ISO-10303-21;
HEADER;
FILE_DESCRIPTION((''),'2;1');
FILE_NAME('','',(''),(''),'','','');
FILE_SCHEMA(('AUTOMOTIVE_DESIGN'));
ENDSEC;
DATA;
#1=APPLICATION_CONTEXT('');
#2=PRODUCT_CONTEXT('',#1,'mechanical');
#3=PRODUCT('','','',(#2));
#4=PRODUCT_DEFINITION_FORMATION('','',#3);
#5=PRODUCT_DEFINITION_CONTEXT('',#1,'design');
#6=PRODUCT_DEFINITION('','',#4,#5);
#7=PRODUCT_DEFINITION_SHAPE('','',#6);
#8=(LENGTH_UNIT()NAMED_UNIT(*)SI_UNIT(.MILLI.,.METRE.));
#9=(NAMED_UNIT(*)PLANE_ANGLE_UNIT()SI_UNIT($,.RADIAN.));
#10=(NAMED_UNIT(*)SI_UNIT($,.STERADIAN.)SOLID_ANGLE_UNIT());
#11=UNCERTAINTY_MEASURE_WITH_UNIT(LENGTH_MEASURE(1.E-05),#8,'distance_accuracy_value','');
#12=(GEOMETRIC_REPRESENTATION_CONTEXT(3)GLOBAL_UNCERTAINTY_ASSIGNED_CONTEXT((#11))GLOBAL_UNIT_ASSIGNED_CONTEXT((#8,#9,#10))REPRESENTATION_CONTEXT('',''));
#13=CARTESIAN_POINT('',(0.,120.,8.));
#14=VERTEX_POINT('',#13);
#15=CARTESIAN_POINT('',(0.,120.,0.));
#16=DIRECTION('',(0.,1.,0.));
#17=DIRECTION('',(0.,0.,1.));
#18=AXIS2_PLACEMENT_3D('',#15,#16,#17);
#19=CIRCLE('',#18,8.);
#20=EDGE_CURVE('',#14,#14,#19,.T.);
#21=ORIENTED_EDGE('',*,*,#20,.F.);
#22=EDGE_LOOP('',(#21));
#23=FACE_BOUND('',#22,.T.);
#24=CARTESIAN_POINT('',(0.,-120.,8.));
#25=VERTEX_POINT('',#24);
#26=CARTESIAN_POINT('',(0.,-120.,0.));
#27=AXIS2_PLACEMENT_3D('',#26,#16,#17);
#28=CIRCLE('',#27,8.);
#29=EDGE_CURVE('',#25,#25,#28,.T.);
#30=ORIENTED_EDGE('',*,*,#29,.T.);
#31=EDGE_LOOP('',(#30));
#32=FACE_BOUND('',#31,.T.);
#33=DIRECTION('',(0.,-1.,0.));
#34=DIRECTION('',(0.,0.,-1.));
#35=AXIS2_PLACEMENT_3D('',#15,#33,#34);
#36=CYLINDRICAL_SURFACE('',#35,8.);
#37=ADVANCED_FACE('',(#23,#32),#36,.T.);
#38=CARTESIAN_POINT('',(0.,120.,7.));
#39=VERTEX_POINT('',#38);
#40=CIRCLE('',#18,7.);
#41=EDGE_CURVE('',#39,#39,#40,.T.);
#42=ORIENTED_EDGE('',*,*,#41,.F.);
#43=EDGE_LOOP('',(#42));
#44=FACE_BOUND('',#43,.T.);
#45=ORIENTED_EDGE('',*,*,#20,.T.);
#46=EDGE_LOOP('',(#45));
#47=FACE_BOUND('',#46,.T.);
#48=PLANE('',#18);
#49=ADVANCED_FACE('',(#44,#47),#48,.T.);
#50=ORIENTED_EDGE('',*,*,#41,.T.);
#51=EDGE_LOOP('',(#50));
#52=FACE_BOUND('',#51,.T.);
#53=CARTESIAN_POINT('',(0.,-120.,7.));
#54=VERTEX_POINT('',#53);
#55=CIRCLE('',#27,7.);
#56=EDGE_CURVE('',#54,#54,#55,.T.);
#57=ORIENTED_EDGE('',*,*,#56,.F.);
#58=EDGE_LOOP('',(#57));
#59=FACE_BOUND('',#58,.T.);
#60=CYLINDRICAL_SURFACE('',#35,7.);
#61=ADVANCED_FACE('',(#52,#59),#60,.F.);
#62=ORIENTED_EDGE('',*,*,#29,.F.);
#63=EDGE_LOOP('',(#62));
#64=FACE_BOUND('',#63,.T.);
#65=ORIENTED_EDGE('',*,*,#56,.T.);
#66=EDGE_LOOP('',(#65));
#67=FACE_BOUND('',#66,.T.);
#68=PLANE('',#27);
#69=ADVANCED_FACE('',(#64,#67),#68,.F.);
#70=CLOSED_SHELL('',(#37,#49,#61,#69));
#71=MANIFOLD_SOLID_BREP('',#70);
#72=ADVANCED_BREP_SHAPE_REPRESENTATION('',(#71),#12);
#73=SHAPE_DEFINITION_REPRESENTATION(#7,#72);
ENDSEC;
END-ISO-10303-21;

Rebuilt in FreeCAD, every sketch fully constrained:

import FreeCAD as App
import Part
import Sketcher

doc = App.newDocument("Part")
body = doc.addObject("PartDesign::Body", "Body")

# Sketch on XZ plane
sketch1 = doc.addObject("Sketcher::SketchObject", "Sketch")
body.addObject(sketch1)
sketch1.AttachmentSupport = (doc.XZ_Plane, [""])
sketch1.MapMode = "FlatFace"
sketch1.addGeometry([
    Part.Circle(App.Vector(0, 0, 0), App.Vector(0, 0, 1), 8),
    Part.Circle(App.Vector(0, 0, 0), App.Vector(0, 0, 1), 7),
], False)
sketch1.addConstraint([
    Sketcher.Constraint("Coincident", 0, 3, -1, 1),
    Sketcher.Constraint("Coincident", 1, 3, -1, 1),
    Sketcher.Constraint("Diameter", 0, 16.0),
    Sketcher.Constraint("Diameter", 1, 14.0),
])
pad1 = doc.addObject("PartDesign::Pad", "Pad")
body.addObject(pad1)
pad1.Profile = sketch1
pad1.Length = 240
pad1.Midplane = True

doc.recompute()
